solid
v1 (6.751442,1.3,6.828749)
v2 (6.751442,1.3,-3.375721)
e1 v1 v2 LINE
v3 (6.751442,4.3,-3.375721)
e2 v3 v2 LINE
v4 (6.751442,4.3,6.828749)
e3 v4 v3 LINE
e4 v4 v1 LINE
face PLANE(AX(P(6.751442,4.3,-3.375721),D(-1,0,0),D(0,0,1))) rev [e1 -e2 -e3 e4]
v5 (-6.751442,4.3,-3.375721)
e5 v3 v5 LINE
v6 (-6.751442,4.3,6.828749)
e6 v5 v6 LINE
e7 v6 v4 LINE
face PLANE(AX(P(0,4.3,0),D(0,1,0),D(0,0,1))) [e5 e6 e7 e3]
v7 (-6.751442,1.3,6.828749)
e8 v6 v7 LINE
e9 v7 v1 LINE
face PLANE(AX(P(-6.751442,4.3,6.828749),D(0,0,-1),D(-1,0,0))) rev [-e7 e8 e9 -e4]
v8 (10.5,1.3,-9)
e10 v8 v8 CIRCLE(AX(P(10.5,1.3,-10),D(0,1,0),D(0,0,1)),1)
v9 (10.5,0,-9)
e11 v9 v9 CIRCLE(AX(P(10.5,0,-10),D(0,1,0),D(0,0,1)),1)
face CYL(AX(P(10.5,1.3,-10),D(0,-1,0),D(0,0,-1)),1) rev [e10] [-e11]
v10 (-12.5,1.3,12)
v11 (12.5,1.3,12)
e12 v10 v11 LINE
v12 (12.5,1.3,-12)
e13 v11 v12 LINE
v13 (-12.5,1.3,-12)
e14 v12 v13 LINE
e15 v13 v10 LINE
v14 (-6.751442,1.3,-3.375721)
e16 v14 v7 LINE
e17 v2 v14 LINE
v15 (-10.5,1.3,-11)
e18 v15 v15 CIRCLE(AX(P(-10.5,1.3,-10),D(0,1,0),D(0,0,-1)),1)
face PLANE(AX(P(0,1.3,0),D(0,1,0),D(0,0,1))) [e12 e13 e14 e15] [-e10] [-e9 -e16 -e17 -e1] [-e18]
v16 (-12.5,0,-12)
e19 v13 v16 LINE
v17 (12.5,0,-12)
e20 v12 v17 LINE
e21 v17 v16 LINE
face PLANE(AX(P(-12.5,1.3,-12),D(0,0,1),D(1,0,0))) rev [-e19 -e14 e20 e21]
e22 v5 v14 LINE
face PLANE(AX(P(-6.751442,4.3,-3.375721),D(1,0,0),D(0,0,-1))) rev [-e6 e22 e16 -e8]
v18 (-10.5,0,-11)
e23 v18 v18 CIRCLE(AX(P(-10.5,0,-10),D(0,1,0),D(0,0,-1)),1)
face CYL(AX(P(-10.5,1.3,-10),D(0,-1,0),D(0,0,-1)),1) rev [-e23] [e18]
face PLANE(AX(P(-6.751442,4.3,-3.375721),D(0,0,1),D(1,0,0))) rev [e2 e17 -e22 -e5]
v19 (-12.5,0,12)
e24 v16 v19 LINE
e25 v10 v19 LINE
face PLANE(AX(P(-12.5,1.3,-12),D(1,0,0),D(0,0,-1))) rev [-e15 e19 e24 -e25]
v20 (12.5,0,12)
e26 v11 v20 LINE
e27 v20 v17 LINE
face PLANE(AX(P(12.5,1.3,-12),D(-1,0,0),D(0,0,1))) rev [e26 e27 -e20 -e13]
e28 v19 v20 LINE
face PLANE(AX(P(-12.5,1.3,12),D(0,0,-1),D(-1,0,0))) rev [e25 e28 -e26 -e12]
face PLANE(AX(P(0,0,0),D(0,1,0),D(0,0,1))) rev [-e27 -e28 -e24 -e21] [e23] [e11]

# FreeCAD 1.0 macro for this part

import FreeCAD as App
import Part
import Sketcher
from FreeCAD import Vector


def add_polygon(sketch, points):
    """Adds a closed chain of lines whose ends are joined by coincident constraints."""
    first, n = sketch.GeometryCount, len(points)
    for a, b in zip(points, points[1:] + points[:1]):
        sketch.addGeometry(Part.LineSegment(App.Vector(*a, 0), App.Vector(*b, 0)), False)
    for i in range(n):
        sketch.addConstraint(Sketcher.Constraint("Coincident", first + i, 2, first + (i + 1) % n, 1))

doc = App.newDocument("Part")
params = doc.addObject("Spreadsheet::Sheet", "Params")
for row, (alias, value) in enumerate([
    ("sketch1_diameter", "2 mm"),
    ("sketch1_width", "25 mm"),
    ("sketch1_height", "24 mm"),
    ("pad1_length", "1.3 mm"),
    ("pad2_length", "3 mm"),
], start=1):
    params.set(f"A{row}", alias)
    params.set(f"B{row}", "=" + value)
    params.setAlias(f"B{row}", alias)

body = doc.addObject("PartDesign::Body", "Body")

# Sketch on XZ plane
sketch1 = doc.addObject("Sketcher::SketchObject", "Sketch")
body.addObject(sketch1)
sketch1.AttachmentSupport = (doc.XZ_Plane, [""])
sketch1.MapMode = "FlatFace"
add_polygon(sketch1, [(-12.5, -12), (-12.5, 12), (12.5, 12), (12.5, -12)])  # lines 0-3
sketch1.addGeometry(Part.Circle(Vector(-10.5, -10, 0), Vector(0, 0, 1), 1), False)  # 4
sketch1.addGeometry(Part.Circle(Vector(10.5, -10, 0), Vector(0, 0, 1), 1), False)  # 5
sketch1.addConstraint([
    Sketcher.Constraint("Vertical", 0),
    Sketcher.Constraint("Horizontal", 1),
    Sketcher.Constraint("Vertical", 2),
    Sketcher.Constraint("Horizontal", 3),
    Sketcher.Constraint("Equal", 4, 5),
    Sketcher.Constraint("Symmetric", 0, 2, 2, 2, -1, 1),
    Sketcher.Constraint("Symmetric", 4, 3, 5, 3, -2),
    Sketcher.Constraint("Diameter", 4, 2.0),
    Sketcher.Constraint("DistanceX", 1, 1, 1, 2, 25.0),
    Sketcher.Constraint("DistanceY", 0, 1, 0, 2, 24.0),
    Sketcher.Constraint("DistanceY", 4, 3, -1, 1, 10.0),
    Sketcher.Constraint("DistanceX", 4, 3, 5, 3, 21.0),
])
sketch1.setExpression("Constraints[11]", "Params.sketch1_diameter")
sketch1.setExpression("Constraints[12]", "Params.sketch1_width")
sketch1.setExpression("Constraints[13]", "Params.sketch1_height")
pad1 = doc.addObject("PartDesign::Pad", "Pad")
body.addObject(pad1)
pad1.Profile = sketch1
pad1.setExpression("Length", "Params.pad1_length")
pad1.Reversed = True

# Sketch on XZ plane
sketch2 = doc.addObject("Sketcher::SketchObject", "Sketch001")
body.addObject(sketch2)
sketch2.AttachmentSupport = (doc.XZ_Plane, [""])
sketch2.MapMode = "FlatFace"
sketch2.AttachmentOffset = App.Placement(Vector(0, 0, -1.3), App.Rotation())
add_polygon(sketch2, [(-7, -3), (-7, 7), (7, 7), (7, -3)])  # lines 0-3
sketch2.addConstraint([
    Sketcher.Constraint("Vertical", 0),
    Sketcher.Constraint("Horizontal", 1),
    Sketcher.Constraint("Vertical", 2),
    Sketcher.Constraint("Horizontal", 3),
    Sketcher.Constraint("DistanceY", 0, 1, 0, 2, 10.20447),
    Sketcher.Constraint("DistanceX", 1, 1, 1, 2, 13.502884),
    Sketcher.Constraint("DistanceY", -1, 1, 0, 2, 6.828749),
    Sketcher.Constraint("DistanceX", 0, 2, -1, 1, 6.751442),
])
pad2 = doc.addObject("PartDesign::Pad", "Pad001")
body.addObject(pad2)
pad2.Profile = sketch2
pad2.setExpression("Length", "Params.pad2_length")
pad2.Reversed = True

doc.recompute()
